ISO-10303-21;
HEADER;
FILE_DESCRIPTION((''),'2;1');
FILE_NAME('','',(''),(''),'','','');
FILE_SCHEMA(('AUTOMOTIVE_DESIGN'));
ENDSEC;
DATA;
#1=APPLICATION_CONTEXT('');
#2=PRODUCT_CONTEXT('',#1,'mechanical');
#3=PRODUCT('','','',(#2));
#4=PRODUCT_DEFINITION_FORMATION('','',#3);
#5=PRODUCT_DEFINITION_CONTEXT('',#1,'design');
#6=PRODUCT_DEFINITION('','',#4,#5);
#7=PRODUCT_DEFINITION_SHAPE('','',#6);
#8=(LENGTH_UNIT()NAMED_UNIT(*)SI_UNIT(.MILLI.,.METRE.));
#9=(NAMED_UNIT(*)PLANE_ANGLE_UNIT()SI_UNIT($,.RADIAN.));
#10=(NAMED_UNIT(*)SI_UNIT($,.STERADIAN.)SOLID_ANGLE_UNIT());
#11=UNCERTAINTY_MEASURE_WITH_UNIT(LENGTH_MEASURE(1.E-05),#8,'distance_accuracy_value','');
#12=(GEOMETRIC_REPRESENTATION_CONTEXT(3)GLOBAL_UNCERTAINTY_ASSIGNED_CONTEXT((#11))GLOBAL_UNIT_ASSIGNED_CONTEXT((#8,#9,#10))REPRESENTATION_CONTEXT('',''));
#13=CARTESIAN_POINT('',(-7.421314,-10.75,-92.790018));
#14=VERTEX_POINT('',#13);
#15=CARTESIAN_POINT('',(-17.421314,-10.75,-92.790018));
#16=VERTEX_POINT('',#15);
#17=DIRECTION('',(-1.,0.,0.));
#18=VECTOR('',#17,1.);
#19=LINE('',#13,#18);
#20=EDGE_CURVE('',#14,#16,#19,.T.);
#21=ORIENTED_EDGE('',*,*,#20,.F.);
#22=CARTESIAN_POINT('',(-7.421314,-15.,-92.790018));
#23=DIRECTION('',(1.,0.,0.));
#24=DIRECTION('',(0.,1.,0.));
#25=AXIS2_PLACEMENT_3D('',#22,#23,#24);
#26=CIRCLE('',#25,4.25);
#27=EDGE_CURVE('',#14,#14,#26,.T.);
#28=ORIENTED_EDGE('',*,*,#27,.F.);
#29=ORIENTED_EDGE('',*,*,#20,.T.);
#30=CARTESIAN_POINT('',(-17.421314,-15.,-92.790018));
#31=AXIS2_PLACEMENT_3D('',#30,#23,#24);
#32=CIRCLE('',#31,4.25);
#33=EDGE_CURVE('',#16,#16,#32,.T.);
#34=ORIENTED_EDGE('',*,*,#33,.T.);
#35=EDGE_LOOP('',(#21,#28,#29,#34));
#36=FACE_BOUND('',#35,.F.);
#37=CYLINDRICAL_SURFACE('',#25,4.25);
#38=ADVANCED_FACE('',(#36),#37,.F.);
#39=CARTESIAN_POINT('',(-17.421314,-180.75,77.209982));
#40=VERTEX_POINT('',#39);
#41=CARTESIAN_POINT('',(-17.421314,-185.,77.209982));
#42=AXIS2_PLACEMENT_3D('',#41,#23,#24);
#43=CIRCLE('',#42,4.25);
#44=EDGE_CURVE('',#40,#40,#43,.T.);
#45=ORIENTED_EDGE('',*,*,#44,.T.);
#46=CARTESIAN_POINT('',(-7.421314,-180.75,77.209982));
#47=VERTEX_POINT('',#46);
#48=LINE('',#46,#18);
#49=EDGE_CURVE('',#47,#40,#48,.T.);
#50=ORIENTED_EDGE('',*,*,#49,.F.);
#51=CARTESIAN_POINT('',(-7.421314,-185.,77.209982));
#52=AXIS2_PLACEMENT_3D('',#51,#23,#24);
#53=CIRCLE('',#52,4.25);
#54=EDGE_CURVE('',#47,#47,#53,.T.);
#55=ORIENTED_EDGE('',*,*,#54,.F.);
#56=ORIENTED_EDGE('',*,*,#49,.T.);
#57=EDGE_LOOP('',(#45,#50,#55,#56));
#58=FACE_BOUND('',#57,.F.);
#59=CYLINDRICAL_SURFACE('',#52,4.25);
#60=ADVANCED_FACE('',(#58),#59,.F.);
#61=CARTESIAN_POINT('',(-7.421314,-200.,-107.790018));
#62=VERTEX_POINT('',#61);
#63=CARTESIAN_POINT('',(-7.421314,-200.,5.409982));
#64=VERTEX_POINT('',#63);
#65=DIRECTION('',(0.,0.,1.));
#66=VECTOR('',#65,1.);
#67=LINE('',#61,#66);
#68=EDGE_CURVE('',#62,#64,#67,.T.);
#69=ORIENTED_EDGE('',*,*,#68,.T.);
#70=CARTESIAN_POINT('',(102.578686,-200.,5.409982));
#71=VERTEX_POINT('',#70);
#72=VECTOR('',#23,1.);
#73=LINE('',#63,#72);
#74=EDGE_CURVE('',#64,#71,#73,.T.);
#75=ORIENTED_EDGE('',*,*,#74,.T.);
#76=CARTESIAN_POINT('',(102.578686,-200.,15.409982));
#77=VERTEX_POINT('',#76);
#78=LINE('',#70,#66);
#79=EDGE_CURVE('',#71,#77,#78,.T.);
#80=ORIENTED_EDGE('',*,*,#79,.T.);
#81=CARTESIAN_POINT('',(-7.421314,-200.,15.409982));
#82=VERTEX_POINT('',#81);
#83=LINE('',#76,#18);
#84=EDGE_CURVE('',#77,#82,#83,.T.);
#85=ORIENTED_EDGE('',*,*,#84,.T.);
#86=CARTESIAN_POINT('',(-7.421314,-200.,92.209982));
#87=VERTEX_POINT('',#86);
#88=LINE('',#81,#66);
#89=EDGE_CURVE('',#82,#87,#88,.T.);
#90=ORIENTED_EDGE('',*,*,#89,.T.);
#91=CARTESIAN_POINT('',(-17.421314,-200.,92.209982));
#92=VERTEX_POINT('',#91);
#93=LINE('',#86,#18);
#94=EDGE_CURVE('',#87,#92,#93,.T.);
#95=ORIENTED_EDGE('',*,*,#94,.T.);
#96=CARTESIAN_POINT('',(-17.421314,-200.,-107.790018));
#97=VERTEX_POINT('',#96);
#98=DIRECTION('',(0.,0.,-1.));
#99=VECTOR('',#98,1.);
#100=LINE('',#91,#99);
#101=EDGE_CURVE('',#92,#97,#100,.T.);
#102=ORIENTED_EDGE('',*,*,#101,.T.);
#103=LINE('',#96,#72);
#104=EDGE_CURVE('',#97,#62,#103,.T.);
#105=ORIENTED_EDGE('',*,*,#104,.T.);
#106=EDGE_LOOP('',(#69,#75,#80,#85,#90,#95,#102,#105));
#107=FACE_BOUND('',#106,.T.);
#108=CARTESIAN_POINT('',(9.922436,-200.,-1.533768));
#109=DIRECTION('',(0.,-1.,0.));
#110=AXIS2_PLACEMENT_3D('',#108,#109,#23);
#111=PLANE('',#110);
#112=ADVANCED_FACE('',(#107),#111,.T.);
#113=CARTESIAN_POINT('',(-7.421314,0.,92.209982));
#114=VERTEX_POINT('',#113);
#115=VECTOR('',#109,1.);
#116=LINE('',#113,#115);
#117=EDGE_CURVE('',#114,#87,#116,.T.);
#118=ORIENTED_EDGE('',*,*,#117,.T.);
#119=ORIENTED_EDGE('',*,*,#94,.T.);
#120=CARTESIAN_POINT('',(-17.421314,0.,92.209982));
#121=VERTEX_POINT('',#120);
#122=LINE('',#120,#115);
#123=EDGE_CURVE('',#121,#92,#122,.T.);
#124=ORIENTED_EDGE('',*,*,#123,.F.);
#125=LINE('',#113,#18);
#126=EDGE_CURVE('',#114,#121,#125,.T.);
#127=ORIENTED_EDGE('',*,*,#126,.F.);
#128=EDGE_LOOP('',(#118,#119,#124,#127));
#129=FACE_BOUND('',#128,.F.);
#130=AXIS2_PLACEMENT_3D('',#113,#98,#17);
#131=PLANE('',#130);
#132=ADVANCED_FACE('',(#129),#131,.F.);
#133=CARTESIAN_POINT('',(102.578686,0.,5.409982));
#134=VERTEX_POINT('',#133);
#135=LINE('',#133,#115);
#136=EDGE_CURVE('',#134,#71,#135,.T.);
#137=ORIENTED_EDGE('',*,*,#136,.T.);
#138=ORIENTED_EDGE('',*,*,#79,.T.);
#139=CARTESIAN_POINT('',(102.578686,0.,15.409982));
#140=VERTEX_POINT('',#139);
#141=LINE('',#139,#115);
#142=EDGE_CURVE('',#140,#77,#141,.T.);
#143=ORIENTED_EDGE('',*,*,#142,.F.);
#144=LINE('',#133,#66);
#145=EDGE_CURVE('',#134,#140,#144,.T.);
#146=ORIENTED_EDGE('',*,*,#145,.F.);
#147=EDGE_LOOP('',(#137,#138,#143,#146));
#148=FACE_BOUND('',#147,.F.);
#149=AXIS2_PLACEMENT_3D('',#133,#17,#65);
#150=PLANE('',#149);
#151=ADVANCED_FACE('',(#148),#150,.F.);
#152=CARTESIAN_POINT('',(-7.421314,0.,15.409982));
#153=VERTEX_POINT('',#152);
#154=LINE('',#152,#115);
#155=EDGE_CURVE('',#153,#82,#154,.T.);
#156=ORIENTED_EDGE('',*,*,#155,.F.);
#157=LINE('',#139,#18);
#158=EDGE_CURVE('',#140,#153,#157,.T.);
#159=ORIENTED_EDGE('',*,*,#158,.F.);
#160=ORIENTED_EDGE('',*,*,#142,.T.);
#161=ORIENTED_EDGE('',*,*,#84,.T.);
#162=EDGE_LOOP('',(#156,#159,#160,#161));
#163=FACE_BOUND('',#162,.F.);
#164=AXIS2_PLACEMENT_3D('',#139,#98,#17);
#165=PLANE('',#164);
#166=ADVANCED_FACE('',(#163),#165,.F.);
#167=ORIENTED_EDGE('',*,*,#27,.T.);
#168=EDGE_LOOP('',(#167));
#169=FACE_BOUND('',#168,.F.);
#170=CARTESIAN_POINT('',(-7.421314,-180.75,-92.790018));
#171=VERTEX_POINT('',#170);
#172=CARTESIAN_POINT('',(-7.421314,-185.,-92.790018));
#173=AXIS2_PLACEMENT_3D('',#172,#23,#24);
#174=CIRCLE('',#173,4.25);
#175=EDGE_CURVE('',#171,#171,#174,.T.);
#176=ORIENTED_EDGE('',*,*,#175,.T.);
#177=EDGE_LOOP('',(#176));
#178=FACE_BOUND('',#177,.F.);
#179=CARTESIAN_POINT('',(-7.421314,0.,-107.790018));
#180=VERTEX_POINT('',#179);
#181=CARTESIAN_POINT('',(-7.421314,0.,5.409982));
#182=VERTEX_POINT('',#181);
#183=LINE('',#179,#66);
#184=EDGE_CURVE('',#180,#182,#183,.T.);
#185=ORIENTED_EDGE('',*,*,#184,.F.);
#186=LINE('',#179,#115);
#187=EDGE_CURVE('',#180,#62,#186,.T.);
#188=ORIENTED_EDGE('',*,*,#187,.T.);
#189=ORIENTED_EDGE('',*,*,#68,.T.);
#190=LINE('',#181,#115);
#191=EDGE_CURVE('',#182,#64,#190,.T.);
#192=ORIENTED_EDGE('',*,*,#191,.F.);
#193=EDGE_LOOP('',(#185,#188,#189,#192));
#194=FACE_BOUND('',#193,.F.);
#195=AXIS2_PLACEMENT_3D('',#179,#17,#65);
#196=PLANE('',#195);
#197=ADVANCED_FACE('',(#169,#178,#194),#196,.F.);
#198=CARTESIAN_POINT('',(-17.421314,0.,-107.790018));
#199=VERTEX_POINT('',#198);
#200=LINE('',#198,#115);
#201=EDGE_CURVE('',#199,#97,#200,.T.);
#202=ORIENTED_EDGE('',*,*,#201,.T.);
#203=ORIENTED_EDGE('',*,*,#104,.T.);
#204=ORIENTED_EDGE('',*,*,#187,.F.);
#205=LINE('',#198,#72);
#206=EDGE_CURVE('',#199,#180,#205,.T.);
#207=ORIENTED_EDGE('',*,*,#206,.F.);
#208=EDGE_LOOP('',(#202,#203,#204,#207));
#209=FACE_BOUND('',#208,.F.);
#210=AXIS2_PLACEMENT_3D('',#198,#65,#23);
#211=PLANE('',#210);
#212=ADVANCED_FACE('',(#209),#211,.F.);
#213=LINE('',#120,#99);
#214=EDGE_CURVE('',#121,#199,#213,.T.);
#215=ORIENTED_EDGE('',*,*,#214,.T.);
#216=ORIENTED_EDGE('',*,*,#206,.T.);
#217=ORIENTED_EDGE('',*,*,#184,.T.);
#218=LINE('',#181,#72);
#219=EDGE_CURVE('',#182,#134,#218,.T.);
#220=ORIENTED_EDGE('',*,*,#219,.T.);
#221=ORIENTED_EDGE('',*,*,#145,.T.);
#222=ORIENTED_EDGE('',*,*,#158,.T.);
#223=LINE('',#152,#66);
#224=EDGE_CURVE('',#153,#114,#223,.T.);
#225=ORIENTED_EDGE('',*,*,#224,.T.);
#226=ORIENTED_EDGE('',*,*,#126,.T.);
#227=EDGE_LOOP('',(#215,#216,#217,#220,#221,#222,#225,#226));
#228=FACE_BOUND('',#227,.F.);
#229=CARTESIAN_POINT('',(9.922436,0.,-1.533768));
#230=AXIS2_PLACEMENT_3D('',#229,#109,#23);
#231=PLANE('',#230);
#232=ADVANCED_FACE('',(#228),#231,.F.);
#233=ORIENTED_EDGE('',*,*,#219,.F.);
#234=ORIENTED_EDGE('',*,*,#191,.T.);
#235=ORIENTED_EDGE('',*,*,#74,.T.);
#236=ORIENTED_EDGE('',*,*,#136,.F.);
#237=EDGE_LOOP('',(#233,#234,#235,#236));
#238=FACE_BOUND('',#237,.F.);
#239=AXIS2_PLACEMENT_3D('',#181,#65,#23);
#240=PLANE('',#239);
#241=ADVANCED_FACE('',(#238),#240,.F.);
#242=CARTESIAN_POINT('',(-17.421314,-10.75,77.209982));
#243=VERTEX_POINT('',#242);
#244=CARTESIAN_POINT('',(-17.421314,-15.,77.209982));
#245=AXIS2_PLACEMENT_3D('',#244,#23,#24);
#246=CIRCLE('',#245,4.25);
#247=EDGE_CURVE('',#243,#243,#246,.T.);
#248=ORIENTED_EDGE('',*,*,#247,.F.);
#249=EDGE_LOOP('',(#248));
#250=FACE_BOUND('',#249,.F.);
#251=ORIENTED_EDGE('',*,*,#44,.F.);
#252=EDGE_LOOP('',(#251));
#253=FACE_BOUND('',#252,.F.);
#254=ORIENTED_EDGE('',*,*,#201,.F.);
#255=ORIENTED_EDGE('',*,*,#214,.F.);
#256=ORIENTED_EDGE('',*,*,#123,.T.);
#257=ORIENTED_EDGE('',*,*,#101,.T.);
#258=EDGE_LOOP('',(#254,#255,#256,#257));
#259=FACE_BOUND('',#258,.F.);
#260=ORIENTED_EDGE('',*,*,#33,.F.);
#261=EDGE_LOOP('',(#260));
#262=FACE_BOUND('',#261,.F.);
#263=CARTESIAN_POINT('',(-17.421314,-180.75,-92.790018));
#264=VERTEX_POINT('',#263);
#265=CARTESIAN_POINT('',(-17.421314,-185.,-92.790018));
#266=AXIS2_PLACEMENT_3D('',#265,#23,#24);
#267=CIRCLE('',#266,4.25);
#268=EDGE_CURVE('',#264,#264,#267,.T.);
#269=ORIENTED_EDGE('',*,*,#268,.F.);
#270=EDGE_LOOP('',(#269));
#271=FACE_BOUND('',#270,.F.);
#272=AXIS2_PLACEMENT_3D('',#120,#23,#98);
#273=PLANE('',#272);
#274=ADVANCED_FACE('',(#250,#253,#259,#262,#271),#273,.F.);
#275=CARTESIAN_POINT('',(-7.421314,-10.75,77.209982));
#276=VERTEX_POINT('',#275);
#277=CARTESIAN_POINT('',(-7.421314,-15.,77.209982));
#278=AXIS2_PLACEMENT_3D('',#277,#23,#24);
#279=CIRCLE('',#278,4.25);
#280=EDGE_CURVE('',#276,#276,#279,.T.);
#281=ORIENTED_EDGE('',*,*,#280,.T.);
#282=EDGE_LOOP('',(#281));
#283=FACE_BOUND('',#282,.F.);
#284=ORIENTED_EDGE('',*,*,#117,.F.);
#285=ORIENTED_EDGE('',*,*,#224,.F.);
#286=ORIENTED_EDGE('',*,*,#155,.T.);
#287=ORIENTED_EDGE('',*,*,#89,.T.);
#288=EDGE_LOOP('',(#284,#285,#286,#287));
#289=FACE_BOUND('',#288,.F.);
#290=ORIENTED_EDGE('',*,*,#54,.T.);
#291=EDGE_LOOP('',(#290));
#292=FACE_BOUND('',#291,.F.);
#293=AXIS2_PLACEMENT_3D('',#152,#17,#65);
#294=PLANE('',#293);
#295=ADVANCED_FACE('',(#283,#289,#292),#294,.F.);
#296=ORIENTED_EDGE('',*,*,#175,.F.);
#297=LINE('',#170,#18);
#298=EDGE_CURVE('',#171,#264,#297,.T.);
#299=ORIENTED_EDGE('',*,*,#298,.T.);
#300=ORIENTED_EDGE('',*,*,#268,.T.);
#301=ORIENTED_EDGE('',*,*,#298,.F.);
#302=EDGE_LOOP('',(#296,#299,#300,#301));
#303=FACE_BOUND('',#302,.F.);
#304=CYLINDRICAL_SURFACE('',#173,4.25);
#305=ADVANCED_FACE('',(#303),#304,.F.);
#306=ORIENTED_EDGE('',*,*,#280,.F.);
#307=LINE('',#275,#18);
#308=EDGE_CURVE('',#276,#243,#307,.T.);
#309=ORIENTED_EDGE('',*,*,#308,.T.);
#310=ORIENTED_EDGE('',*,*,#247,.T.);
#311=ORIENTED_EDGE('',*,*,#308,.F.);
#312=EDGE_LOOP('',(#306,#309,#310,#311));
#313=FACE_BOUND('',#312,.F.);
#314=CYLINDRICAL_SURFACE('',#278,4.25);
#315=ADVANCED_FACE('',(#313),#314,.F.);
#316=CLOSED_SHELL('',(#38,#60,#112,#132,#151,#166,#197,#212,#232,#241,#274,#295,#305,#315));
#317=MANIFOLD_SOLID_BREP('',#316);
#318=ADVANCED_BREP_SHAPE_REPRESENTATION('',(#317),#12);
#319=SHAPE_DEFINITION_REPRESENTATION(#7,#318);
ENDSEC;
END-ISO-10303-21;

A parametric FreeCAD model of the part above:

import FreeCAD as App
import Part
import Sketcher


def add_polygon(sketch, points):
    """Adds a closed chain of lines whose ends are joined by coincident constraints."""
    first, n = sketch.GeometryCount, len(points)
    for a, b in zip(points, points[1:] + points[:1]):
        sketch.addGeometry(Part.LineSegment(App.Vector(*a, 0), App.Vector(*b, 0)), False)
    for i in range(n):
        sketch.addConstraint(Sketcher.Constraint("Coincident", first + i, 2, first + (i + 1) % n, 1))

doc = App.newDocument("Part")
params = doc.addObject("Spreadsheet::Sheet", "Params")
for row, (alias, value) in enumerate([
    ("sketch1_width", "10 mm"),
    ("sketch1_width2", "110 mm"),
    ("sketch1_height", "200 mm"),
    ("sketch1_height2", "113.2 mm"),
    ("pad1_length", "200 mm"),
    ("sketch2_diameter", "8.5 mm"),
    ("pocket1_length", "25 mm"),
], start=1):
    params.set(f"A{row}", alias)
    params.set(f"B{row}", "=" + value)
    params.setAlias(f"B{row}", alias)

body = doc.addObject("PartDesign::Body", "Body")

# Sketch on XZ plane
sketch1 = body.newObject("Sketcher::SketchObject", "Sketch")
sketch1.AttachmentSupport = (doc.getObject("XZ_Plane"), [""])
sketch1.MapMode = "FlatFace"
add_polygon(sketch1, [(-7, 92), (-17, 92), (-17, -108), (-7, -108), (-7, 5), (103, 5), (103, 15), (-7, 15)])  # lines 0-7
sketch1.addConstraint(Sketcher.Constraint("Horizontal", 0))
sketch1.addConstraint(Sketcher.Constraint("Vertical", 1))
sketch1.addConstraint(Sketcher.Constraint("Horizontal", 2))
sketch1.addConstraint(Sketcher.Constraint("Vertical", 3))
sketch1.addConstraint(Sketcher.Constraint("Horizontal", 4))
sketch1.addConstraint(Sketcher.Constraint("Vertical", 5))
sketch1.addConstraint(Sketcher.Constraint("Horizontal", 6))
sketch1.addConstraint(Sketcher.Constraint("Vertical", 7))
sketch1.addConstraint(Sketcher.Constraint("Vertical", 3, 2, 6, 2))
sketch1.addConstraint(Sketcher.Constraint("Equal", 2, 5))
sketch1.addConstraint(Sketcher.Constraint("DistanceX", 0, 2, 0, 1, 10.0))
sketch1.addConstraint(Sketcher.Constraint("DistanceX", 4, 1, 4, 2, 110.0))
sketch1.addConstraint(Sketcher.Constraint("DistanceY", 1, 2, 1, 1, 200.0))
sketch1.addConstraint(Sketcher.Constraint("DistanceY", 3, 1, 3, 2, 113.2))
sketch1.addConstraint(Sketcher.Constraint("DistanceY", -1, 1, 0, 2, 92.209982))
sketch1.addConstraint(Sketcher.Constraint("DistanceX", 0, 2, -1, 1, 17.421314))
sketch1.setExpression("Constraints[18]", "Params.sketch1_width")
sketch1.setExpression("Constraints[19]", "Params.sketch1_width2")
sketch1.setExpression("Constraints[20]", "Params.sketch1_height")
sketch1.setExpression("Constraints[21]", "Params.sketch1_height2")
pad1 = body.newObject("PartDesign::Pad", "Pad")
pad1.Profile = sketch1
pad1.setExpression("Length", "Params.pad1_length")

# Sketch on YZ plane
sketch2 = body.newObject("Sketcher::SketchObject", "Sketch001")
sketch2.AttachmentSupport = (doc.getObject("YZ_Plane"), [""])
sketch2.MapMode = "FlatFace"
sketch2.AttachmentOffset = App.Placement(App.Vector(0, 0, -7.421314), App.Rotation())
sketch2.addGeometry(Part.Circle(App.Vector(-185, 77.2, 0), App.Vector(0, 0, 1), 4.2), False)
sketch2.addGeometry(Part.Circle(App.Vector(-15, 77.2, 0), App.Vector(0, 0, 1), 4.2), False)
sketch2.addGeometry(Part.Circle(App.Vector(-185, -92.8, 0), App.Vector(0, 0, 1), 4.2), False)
sketch2.addGeometry(Part.Circle(App.Vector(-15, -92.8, 0), App.Vector(0, 0, 1), 4.2), False)
sketch2.addConstraint(Sketcher.Constraint("Equal", 0, 1))
sketch2.addConstraint(Sketcher.Constraint("Equal", 1, 2))
sketch2.addConstraint(Sketcher.Constraint("Equal", 2, 3))
sketch2.addConstraint(Sketcher.Constraint("Horizontal", 0, 3, 1, 3))
sketch2.addConstraint(Sketcher.Constraint("Horizontal", 2, 3, 3, 3))
sketch2.addConstraint(Sketcher.Constraint("Vertical", 0, 3, 2, 3))
sketch2.addConstraint(Sketcher.Constraint("Vertical", 1, 3, 3, 3))
sketch2.addConstraint(Sketcher.Constraint("Diameter", 0, 8.5))
sketch2.addConstraint(Sketcher.Constraint("DistanceX", 0, 3, -1, 1, 185.0))
sketch2.addConstraint(Sketcher.Constraint("DistanceX", 1, 3, -1, 1, 15.0))
sketch2.addConstraint(Sketcher.Constraint("DistanceY", 2, 3, 0, 3, 170.0))
sketch2.addConstraint(Sketcher.Constraint("DistanceY", -1, 1, 0, 3, 77.209982))
sketch2.setExpression("Constraints[7]", "Params.sketch2_diameter")
pocket1 = body.newObject("PartDesign::Pocket", "Pocket")
pocket1.Profile = sketch2
pocket1.setExpression("Length", "Params.pocket1_length")

doc.recompute()
